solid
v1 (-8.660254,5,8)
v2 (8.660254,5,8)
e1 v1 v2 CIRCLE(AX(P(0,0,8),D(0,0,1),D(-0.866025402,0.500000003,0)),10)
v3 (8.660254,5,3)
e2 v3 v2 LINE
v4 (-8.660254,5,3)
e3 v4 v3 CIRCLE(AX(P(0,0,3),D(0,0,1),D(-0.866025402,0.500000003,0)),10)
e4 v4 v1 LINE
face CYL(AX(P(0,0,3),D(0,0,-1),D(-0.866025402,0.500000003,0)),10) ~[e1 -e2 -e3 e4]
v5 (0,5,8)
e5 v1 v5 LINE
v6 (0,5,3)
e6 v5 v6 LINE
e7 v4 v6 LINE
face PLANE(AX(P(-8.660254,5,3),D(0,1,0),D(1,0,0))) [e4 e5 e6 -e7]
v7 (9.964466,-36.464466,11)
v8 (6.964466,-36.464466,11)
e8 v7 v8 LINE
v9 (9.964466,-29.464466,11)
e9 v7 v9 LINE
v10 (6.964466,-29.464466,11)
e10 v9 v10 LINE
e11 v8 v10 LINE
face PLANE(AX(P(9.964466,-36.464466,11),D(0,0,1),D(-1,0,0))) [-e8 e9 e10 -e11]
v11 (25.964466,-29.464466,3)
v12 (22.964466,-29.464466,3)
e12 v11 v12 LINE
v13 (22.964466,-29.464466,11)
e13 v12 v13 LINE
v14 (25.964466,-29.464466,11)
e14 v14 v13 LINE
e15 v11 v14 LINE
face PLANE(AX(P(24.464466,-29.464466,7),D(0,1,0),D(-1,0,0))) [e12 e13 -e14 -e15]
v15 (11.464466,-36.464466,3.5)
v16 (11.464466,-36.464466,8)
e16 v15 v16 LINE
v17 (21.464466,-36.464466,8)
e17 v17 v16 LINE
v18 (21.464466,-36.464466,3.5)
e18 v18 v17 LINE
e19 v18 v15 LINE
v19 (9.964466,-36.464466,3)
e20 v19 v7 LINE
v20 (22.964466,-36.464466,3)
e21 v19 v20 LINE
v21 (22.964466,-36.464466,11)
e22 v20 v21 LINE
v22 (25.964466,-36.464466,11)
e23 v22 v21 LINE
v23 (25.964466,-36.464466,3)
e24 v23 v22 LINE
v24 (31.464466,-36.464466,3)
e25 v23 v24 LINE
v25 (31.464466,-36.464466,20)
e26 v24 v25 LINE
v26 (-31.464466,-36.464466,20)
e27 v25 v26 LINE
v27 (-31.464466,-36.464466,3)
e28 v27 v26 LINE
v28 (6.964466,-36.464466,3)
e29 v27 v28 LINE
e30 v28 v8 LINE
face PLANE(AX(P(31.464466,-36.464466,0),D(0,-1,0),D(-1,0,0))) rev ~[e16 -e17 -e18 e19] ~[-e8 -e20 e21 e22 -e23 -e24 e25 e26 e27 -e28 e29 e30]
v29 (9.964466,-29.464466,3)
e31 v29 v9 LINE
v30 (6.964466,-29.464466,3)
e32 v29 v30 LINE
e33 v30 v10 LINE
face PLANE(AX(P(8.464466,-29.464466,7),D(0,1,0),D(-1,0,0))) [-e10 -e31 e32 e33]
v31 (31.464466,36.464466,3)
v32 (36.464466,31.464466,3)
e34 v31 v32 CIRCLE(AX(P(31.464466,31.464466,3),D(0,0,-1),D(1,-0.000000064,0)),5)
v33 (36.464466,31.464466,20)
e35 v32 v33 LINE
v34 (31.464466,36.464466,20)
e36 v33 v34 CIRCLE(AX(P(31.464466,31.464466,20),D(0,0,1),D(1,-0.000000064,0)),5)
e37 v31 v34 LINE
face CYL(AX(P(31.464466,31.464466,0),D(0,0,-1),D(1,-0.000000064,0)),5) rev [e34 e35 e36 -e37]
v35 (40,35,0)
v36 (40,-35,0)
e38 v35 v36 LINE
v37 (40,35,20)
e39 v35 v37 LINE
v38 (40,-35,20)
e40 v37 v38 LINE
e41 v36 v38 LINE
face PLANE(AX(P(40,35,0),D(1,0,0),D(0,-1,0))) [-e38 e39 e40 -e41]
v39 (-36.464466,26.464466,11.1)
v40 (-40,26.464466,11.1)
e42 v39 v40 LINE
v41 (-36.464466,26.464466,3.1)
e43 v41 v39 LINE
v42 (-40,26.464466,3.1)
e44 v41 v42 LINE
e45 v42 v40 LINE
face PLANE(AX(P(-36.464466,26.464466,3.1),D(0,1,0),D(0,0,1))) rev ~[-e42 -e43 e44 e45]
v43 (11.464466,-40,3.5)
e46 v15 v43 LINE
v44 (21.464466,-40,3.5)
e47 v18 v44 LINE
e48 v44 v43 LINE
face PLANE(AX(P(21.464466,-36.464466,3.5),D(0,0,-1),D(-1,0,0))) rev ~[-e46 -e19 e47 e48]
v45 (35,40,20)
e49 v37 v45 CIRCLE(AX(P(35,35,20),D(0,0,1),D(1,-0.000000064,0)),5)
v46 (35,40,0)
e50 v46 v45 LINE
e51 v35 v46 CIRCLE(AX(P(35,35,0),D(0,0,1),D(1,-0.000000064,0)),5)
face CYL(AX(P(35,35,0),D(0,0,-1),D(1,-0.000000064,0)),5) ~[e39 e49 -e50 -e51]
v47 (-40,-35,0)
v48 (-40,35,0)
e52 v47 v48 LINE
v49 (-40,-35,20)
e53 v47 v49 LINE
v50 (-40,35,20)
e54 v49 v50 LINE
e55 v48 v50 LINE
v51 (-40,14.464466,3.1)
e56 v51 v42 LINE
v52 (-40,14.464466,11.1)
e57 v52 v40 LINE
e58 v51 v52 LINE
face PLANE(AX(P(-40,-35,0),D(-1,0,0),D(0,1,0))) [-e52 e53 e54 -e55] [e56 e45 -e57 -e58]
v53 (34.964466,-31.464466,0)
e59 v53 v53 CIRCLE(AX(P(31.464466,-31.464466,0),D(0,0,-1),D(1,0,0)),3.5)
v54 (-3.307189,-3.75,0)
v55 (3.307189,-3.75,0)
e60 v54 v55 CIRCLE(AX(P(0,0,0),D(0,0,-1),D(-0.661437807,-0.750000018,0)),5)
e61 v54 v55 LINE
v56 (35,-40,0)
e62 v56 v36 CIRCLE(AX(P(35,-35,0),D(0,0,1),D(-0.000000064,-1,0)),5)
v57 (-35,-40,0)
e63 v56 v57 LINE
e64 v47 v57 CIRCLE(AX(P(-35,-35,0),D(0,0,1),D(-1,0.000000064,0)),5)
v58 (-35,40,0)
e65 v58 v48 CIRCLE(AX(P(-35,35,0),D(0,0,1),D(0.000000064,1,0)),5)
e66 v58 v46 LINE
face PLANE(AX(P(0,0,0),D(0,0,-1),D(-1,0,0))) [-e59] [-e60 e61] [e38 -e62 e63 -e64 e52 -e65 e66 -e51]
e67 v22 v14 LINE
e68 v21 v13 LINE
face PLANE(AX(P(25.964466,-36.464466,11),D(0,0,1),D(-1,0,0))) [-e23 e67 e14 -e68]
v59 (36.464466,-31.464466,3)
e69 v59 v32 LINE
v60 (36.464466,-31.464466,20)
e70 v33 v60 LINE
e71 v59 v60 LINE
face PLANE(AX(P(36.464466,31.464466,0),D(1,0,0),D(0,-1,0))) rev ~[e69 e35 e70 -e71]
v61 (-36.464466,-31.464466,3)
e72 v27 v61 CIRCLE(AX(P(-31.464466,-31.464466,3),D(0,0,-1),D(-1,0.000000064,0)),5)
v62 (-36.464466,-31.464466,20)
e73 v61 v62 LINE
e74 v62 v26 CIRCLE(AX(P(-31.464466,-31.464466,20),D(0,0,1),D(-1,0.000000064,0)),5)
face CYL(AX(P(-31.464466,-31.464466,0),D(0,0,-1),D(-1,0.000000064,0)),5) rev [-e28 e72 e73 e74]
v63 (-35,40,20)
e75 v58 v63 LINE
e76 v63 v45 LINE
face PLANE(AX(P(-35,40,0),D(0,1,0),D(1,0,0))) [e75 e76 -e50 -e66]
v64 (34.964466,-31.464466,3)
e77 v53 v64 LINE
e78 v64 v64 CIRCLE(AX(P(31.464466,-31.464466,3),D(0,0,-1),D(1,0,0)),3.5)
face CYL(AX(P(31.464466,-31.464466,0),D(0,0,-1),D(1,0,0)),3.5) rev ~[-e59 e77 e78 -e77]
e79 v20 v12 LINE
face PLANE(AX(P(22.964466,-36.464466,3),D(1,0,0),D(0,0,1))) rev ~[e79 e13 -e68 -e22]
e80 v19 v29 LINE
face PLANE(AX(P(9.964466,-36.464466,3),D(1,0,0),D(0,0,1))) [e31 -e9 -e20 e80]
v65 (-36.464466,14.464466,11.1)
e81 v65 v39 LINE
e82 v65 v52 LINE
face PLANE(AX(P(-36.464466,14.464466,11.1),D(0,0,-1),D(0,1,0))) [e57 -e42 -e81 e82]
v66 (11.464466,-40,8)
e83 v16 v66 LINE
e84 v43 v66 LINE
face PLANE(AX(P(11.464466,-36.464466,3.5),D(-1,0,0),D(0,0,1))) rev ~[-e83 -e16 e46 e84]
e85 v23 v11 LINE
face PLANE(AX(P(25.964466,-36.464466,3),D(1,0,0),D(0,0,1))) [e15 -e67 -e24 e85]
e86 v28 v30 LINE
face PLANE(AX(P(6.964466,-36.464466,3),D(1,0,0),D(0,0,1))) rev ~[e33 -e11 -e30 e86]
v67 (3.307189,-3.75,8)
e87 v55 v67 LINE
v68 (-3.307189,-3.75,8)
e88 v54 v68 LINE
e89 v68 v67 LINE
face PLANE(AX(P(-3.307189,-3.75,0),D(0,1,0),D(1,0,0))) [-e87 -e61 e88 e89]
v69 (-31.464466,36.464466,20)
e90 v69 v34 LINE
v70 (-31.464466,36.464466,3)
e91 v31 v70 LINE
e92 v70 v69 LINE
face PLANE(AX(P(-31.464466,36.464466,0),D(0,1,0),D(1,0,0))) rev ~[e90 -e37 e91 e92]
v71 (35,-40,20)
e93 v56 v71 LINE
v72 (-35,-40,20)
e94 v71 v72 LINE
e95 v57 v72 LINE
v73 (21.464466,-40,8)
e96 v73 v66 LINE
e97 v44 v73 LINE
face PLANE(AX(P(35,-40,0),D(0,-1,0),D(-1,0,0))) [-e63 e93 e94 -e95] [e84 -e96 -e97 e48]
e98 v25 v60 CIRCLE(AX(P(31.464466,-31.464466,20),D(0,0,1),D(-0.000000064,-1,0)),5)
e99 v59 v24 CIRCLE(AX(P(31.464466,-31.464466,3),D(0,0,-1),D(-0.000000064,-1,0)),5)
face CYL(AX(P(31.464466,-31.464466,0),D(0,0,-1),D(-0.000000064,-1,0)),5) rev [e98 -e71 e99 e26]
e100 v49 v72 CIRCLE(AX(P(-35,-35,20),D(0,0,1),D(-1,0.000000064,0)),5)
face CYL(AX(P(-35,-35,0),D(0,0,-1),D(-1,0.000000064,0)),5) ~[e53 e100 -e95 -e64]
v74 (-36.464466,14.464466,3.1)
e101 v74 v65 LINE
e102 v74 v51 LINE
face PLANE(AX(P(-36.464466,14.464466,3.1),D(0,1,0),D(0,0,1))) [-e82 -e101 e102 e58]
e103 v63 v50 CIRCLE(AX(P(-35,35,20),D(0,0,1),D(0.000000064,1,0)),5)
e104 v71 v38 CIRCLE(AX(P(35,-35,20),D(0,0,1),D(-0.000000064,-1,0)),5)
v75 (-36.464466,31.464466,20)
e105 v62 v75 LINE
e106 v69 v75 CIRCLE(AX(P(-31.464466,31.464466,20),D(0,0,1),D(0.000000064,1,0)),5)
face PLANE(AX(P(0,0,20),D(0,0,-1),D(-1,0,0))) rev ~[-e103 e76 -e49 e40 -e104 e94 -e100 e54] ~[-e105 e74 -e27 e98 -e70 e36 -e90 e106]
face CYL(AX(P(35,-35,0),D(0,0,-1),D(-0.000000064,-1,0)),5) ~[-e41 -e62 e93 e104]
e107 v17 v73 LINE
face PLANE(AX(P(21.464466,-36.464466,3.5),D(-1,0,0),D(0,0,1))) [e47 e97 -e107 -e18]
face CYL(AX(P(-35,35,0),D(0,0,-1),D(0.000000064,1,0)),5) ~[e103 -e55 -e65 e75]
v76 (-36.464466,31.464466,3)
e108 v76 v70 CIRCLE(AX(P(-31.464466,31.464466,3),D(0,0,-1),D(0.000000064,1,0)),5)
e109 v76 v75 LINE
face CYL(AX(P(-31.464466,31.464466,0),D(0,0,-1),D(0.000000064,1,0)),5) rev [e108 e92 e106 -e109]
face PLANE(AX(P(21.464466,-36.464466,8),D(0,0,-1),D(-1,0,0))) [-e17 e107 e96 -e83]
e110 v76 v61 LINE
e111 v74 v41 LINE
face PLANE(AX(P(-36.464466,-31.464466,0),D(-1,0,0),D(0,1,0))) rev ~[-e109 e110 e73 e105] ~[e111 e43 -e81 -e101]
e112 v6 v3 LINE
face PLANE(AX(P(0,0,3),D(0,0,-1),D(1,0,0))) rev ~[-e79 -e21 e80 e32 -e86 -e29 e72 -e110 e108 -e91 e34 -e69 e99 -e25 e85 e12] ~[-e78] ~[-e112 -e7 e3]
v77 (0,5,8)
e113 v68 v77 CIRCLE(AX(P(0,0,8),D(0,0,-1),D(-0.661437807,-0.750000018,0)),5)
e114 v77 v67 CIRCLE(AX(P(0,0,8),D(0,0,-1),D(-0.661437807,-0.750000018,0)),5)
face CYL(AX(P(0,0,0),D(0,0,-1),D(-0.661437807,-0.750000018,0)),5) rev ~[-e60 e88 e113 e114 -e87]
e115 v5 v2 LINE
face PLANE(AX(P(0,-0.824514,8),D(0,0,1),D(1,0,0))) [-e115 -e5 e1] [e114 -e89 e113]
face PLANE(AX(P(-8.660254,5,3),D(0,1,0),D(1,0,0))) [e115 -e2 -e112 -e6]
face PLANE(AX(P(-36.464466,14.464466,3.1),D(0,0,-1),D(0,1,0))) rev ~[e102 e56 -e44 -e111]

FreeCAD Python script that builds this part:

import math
import FreeCAD as App
import Part
import Sketcher


def add_polygon(sketch, points):
    """Adds a closed chain of lines whose ends are joined by coincident constraints."""
    first, n = sketch.GeometryCount, len(points)
    for a, b in zip(points, points[1:] + points[:1]):
        sketch.addGeometry(Part.LineSegment(App.Vector(*a, 0), App.Vector(*b, 0)), False)
    for i in range(n):
        sketch.addConstraint(Sketcher.Constraint("Coincident", first + i, 2, first + (i + 1) % n, 1))

doc = App.newDocument("Part")
params = doc.addObject("Spreadsheet::Sheet", "Params")
for row, (alias, value) in enumerate([
    ("sketch1_radius", "5 mm"),
    ("sketch1_width", "70 mm"),
    ("pad1_length", "20 mm"),
    ("sketch2_width", "75 mm"),
    ("pad2_length", "3 mm"),
    ("sketch3_width", "10 mm"),
    ("sketch3_height", "4.5 mm"),
    ("pocket1_length", "3.535534 mm"),
    ("sketch4_width", "3 mm"),
    ("sketch4_height", "8 mm"),
    ("pad3_length", "7 mm"),
    ("sketch5_radius", "10 mm"),
    ("pad4_length", "5 mm"),
    ("sketch6_width", "12 mm"),
    ("sketch6_height", "8 mm"),
    ("pocket2_length", "3.535534 mm"),
    ("sketch7_diameter", "7 mm"),
    ("sketch7_radius", "5 mm"),
    ("pocket3_length", "8 mm"),
], start=1):
    params.set(f"A{row}", alias)
    params.set(f"B{row}", "=" + value)
    params.setAlias(f"B{row}", alias)

body = doc.addObject("PartDesign::Body", "Body")

# Sketch on XY plane
sketch1 = body.newObject("Sketcher::SketchObject", "Sketch")
sketch1.AttachmentSupport = (doc.getObject("XY_Plane"), [""])
sketch1.MapMode = "FlatFace"
sketch1.addGeometry(Part.LineSegment(App.Vector(35, 40, 0), App.Vector(-35, 40, 0)), False)
sketch1.addGeometry(Part.ArcOfCircle(Part.Circle(App.Vector(-35, 35, 0), App.Vector(0, 0, 1), 5), math.radians(90), math.radians(180)), False)
sketch1.addGeometry(Part.LineSegment(App.Vector(-40, 35, 0), App.Vector(-40, -35, 0)), False)
sketch1.addGeometry(Part.ArcOfCircle(Part.Circle(App.Vector(-35, -35, 0), App.Vector(0, 0, 1), 5), math.radians(180), math.radians(270)), False)
sketch1.addGeometry(Part.LineSegment(App.Vector(-35, -40, 0), App.Vector(35, -40, 0)), False)
sketch1.addGeometry(Part.ArcOfCircle(Part.Circle(App.Vector(35, -35, 0), App.Vector(0, 0, 1), 5), math.radians(-90), math.radians(0)), False)
sketch1.addGeometry(Part.LineSegment(App.Vector(40, -35, 0), App.Vector(40, 35, 0)), False)
sketch1.addGeometry(Part.ArcOfCircle(Part.Circle(App.Vector(35, 35, 0), App.Vector(0, 0, 1), 5), math.radians(0), math.radians(90)), False)
sketch1.addGeometry(Part.LineSegment(App.Vector(-31.5, 36.5, 0), App.Vector(31.5, 36.5, 0)), False)
sketch1.addGeometry(Part.ArcOfCircle(Part.Circle(App.Vector(31.5, 31.5, 0), App.Vector(0, 0, 1), 5), math.radians(0), math.radians(90)), False)
sketch1.addGeometry(Part.LineSegment(App.Vector(36.5, 31.5, 0), App.Vector(36.5, -31.5, 0)), False)
sketch1.addGeometry(Part.ArcOfCircle(Part.Circle(App.Vector(31.5, -31.5, 0), App.Vector(0, 0, 1), 5), math.radians(-90), math.radians(0)), False)
sketch1.addGeometry(Part.LineSegment(App.Vector(31.5, -36.5, 0), App.Vector(-31.5, -36.5, 0)), False)
sketch1.addGeometry(Part.ArcOfCircle(Part.Circle(App.Vector(-31.5, -31.5, 0), App.Vector(0, 0, 1), 5), math.radians(180), math.radians(270)), False)
sketch1.addGeometry(Part.LineSegment(App.Vector(-36.5, -31.5, 0), App.Vector(-36.5, 31.5, 0)), False)
sketch1.addGeometry(Part.ArcOfCircle(Part.Circle(App.Vector(-31.5, 31.5, 0), App.Vector(0, 0, 1), 5), math.radians(90), math.radians(180)), False)
sketch1.addConstraint(Sketcher.Constraint("Tangent", 0, 2, 1, 1))
sketch1.addConstraint(Sketcher.Constraint("Tangent", 1, 2, 2, 1))
sketch1.addConstraint(Sketcher.Constraint("Tangent", 2, 2, 3, 1))
sketch1.addConstraint(Sketcher.Constraint("Tangent", 3, 2, 4, 1))
sketch1.addConstraint(Sketcher.Constraint("Tangent", 4, 2, 5, 1))
sketch1.addConstraint(Sketcher.Constraint("Tangent", 5, 2, 6, 1))
sketch1.addConstraint(Sketcher.Constraint("Tangent", 6, 2, 7, 1))
sketch1.addConstraint(Sketcher.Constraint("Tangent", 7, 2, 0, 1))
sketch1.addConstraint(Sketcher.Constraint("Tangent", 8, 2, 9, 2))
sketch1.addConstraint(Sketcher.Constraint("Tangent", 9, 1, 10, 1))
sketch1.addConstraint(Sketcher.Constraint("Tangent", 10, 2, 11, 2))
sketch1.addConstraint(Sketcher.Constraint("Tangent", 11, 1, 12, 1))
sketch1.addConstraint(Sketcher.Constraint("Tangent", 12, 2, 13, 2))
sketch1.addConstraint(Sketcher.Constraint("Tangent", 13, 1, 14, 1))
sketch1.addConstraint(Sketcher.Constraint("Tangent", 14, 2, 15, 2))
sketch1.addConstraint(Sketcher.Constraint("Tangent", 15, 1, 8, 1))
sketch1.addConstraint(Sketcher.Constraint("Horizontal", 0))
sketch1.addConstraint(Sketcher.Constraint("Vertical", 2))
sketch1.addConstraint(Sketcher.Constraint("Horizontal", 4))
sketch1.addConstraint(Sketcher.Constraint("Vertical", 6))
sketch1.addConstraint(Sketcher.Constraint("Horizontal", 8))
sketch1.addConstraint(Sketcher.Constraint("Vertical", 10))
sketch1.addConstraint(Sketcher.Constraint("Horizontal", 12))
sketch1.addConstraint(Sketcher.Constraint("Vertical", 14))
sketch1.addConstraint(Sketcher.Constraint("Equal", 1, 3))
sketch1.addConstraint(Sketcher.Constraint("Equal", 3, 5))
sketch1.addConstraint(Sketcher.Constraint("Equal", 5, 7))
sketch1.addConstraint(Sketcher.Constraint("Equal", 7, 9))
sketch1.addConstraint(Sketcher.Constraint("Equal", 9, 11))
sketch1.addConstraint(Sketcher.Constraint("Equal", 11, 13))
sketch1.addConstraint(Sketcher.Constraint("Equal", 13, 15))
sketch1.addConstraint(Sketcher.Constraint("Symmetric", 1, 3, 5, 3, -1, 1))
sketch1.addConstraint(Sketcher.Constraint("Symmetric", 9, 3, 13, 3, -1, 1))
sketch1.addConstraint(Sketcher.Constraint("Equal", 4, 2))
sketch1.addConstraint(Sketcher.Constraint("Equal", 12, 10))
sketch1.addConstraint(Sketcher.Constraint("Radius", 1, 5.0))
sketch1.addConstraint(Sketcher.Constraint("DistanceX", 0, 2, 0, 1, 70.0))
sketch1.addConstraint(Sketcher.Constraint("DistanceX", 8, 1, 8, 2, 62.928932))
sketch1.setExpression("Constraints[35]", "Params.sketch1_radius")
sketch1.setExpression("Constraints[36]", "Params.sketch1_width")
pad1 = body.newObject("PartDesign::Pad", "Pad")
pad1.Profile = sketch1
pad1.setExpression("Length", "Params.pad1_length")

# Sketch on XY plane
sketch2 = body.newObject("Sketcher::SketchObject", "Sketch001")
sketch2.AttachmentSupport = (doc.getObject("XY_Plane"), [""])
sketch2.MapMode = "FlatFace"
add_polygon(sketch2, [(-38, -38), (-38, 38), (38, 38), (38, -38)])  # lines 0-3
sketch2.addConstraint(Sketcher.Constraint("Vertical", 0))
sketch2.addConstraint(Sketcher.Constraint("Horizontal", 1))
sketch2.addConstraint(Sketcher.Constraint("Vertical", 2))
sketch2.addConstraint(Sketcher.Constraint("Horizontal", 3))
sketch2.addConstraint(Sketcher.Constraint("Symmetric", 0, 2, 2, 2, -1, 1))
sketch2.addConstraint(Sketcher.Constraint("Equal", 3, 0))
sketch2.addConstraint(Sketcher.Constraint("DistanceX", 1, 1, 1, 2, 75.0))
sketch2.setExpression("Constraints[10]", "Params.sketch2_width")
pad2 = body.newObject("PartDesign::Pad", "Pad001")
pad2.Profile = sketch2
pad2.setExpression("Length", "Params.pad2_length")

# Sketch on XZ plane
sketch3 = body.newObject("Sketcher::SketchObject", "Sketch002")
sketch3.AttachmentSupport = (doc.getObject("XZ_Plane"), [""])
sketch3.MapMode = "FlatFace"
sketch3.AttachmentOffset = App.Placement(App.Vector(0, 0, 36.464466), App.Rotation())
add_polygon(sketch3, [(21.5, 8), (21.5, 3.5), (11.5, 3.5), (11.5, 8)])  # lines 0-3
sketch3.addConstraint(Sketcher.Constraint("Vertical", 0))
sketch3.addConstraint(Sketcher.Constraint("Horizontal", 1))
sketch3.addConstraint(Sketcher.Constraint("Vertical", 2))
sketch3.addConstraint(Sketcher.Constraint("Horizontal", 3))
sketch3.addConstraint(Sketcher.Constraint("DistanceX", 1, 2, 1, 1, 10.0))
sketch3.addConstraint(Sketcher.Constraint("DistanceY", 0, 2, 0, 1, 4.5))
sketch3.addConstraint(Sketcher.Constraint("DistanceY", -1, 1, 2, 2, 8.0))
sketch3.addConstraint(Sketcher.Constraint("DistanceX", -1, 1, 0, 2, 21.464466))
sketch3.setExpression("Constraints[8]", "Params.sketch3_width")
sketch3.setExpression("Constraints[9]", "Params.sketch3_height")
pocket1 = body.newObject("PartDesign::Pocket", "Pocket")
pocket1.Profile = sketch3
pocket1.setExpression("Length", "Params.pocket1_length")
pocket1.Reversed = True

# Sketch on XZ plane
sketch4 = body.newObject("Sketcher::SketchObject", "Sketch003")
sketch4.AttachmentSupport = (doc.getObject("XZ_Plane"), [""])
sketch4.MapMode = "FlatFace"
sketch4.AttachmentOffset = App.Placement(App.Vector(0, 0, 36.464466), App.Rotation())
add_polygon(sketch4, [(26, 11), (26, 3), (23, 3), (23, 11)])  # lines 0-3
add_polygon(sketch4, [(10, 11), (10, 3), (7, 3), (7, 11)])  # lines 4-7
sketch4.addConstraint(Sketcher.Constraint("Vertical", 0))
sketch4.addConstraint(Sketcher.Constraint("Horizontal", 1))
sketch4.addConstraint(Sketcher.Constraint("Vertical", 2))
sketch4.addConstraint(Sketcher.Constraint("Horizontal", 3))
sketch4.addConstraint(Sketcher.Constraint("Vertical", 4))
sketch4.addConstraint(Sketcher.Constraint("Horizontal", 5))
sketch4.addConstraint(Sketcher.Constraint("Vertical", 6))
sketch4.addConstraint(Sketcher.Constraint("Horizontal", 7))
sketch4.addConstraint(Sketcher.Constraint("Horizontal", 1, 2, 4, 2))
sketch4.addConstraint(Sketcher.Constraint("Horizontal", 3, 2, 6, 2))
sketch4.addConstraint(Sketcher.Constraint("Equal", 3, 5))
sketch4.addConstraint(Sketcher.Constraint("DistanceX", 1, 2, 1, 1, 3.0))
sketch4.addConstraint(Sketcher.Constraint("DistanceY", 0, 2, 0, 1, 8.0))
sketch4.addConstraint(Sketcher.Constraint("DistanceY", -1, 1, 0, 2, 3.0))
sketch4.addConstraint(Sketcher.Constraint("DistanceX", 4, 2, 1, 2, 13.0))
sketch4.addConstraint(Sketcher.Constraint("DistanceX", -1, 1, 0, 2, 25.964466))
sketch4.setExpression("Constraints[19]", "Params.sketch4_width")
sketch4.setExpression("Constraints[20]", "Params.sketch4_height")
pad3 = body.newObject("PartDesign::Pad", "Pad002")
pad3.Profile = sketch4
pad3.setExpression("Length", "Params.pad3_length")
pad3.Reversed = True

# Sketch on XY plane
sketch5 = body.newObject("Sketcher::SketchObject", "Sketch004")
sketch5.AttachmentSupport = (doc.getObject("XY_Plane"), [""])
sketch5.MapMode = "FlatFace"
sketch5.AttachmentOffset = App.Placement(App.Vector(0, 0, 3), App.Rotation())
sketch5.addGeometry(Part.ArcOfCircle(Part.Circle(App.Vector(0, 0, 0), App.Vector(0, 0, 1), 10), math.radians(150), math.radians(390)), False)
sketch5.addGeometry(Part.LineSegment(App.Vector(9, 5, 0), App.Vector(-9, 5, 0)), False)
sketch5.addConstraint(Sketcher.Constraint("Coincident", 0, 1, 1, 2))
sketch5.addConstraint(Sketcher.Constraint("Coincident", 1, 1, 0, 2))
sketch5.addConstraint(Sketcher.Constraint("Horizontal", 1))
sketch5.addConstraint(Sketcher.Constraint("Coincident", 0, 3, -1, 1))
sketch5.addConstraint(Sketcher.Constraint("Radius", 0, 10.0))
sketch5.addConstraint(Sketcher.Constraint("DistanceY", -1, 1, 0, 1, 5.0))
sketch5.setExpression("Constraints[4]", "Params.sketch5_radius")
pad4 = body.newObject("PartDesign::Pad", "Pad003")
pad4.Profile = sketch5
pad4.setExpression("Length", "Params.pad4_length")

# Sketch on YZ plane
sketch6 = body.newObject("Sketcher::SketchObject", "Sketch005")
sketch6.AttachmentSupport = (doc.getObject("YZ_Plane"), [""])
sketch6.MapMode = "FlatFace"
sketch6.AttachmentOffset = App.Placement(App.Vector(0, 0, -36.464466), App.Rotation())
add_polygon(sketch6, [(14, 11), (14, 3), (26, 3), (26, 11)])  # lines 0-3
sketch6.addConstraint(Sketcher.Constraint("Vertical", 0))
sketch6.addConstraint(Sketcher.Constraint("Horizontal", 1))
sketch6.addConstraint(Sketcher.Constraint("Vertical", 2))
sketch6.addConstraint(Sketcher.Constraint("Horizontal", 3))
sketch6.addConstraint(Sketcher.Constraint("DistanceX", 1, 1, 1, 2, 12.0))
sketch6.addConstraint(Sketcher.Constraint("DistanceY", 0, 2, 0, 1, 8.0))
sketch6.addConstraint(Sketcher.Constraint("DistanceY", -1, 1, 0, 2, 3.1))
sketch6.addConstraint(Sketcher.Constraint("DistanceX", -1, 1, 0, 2, 14.464466))
sketch6.setExpression("Constraints[8]", "Params.sketch6_width")
sketch6.setExpression("Constraints[9]", "Params.sketch6_height")
pocket2 = body.newObject("PartDesign::Pocket", "Pocket001")
pocket2.Profile = sketch6
pocket2.setExpression("Length", "Params.pocket2_length")

# Sketch on XY plane
sketch7 = body.newObject("Sketcher::SketchObject", "Sketch006")
sketch7.AttachmentSupport = (doc.getObject("XY_Plane"), [""])
sketch7.MapMode = "FlatFace"
sketch7.addGeometry(Part.Circle(App.Vector(31.5, -31.5, 0), App.Vector(0, 0, 1), 3.5), False)
sketch7.addGeometry(Part.ArcOfCircle(Part.Circle(App.Vector(0, 0, 0), App.Vector(0, 0, 1), 5), math.radians(-49), math.radians(229)), False)
sketch7.addGeometry(Part.LineSegment(App.Vector(3.3, -3.8, 0), App.Vector(-3.3, -3.8, 0)), False)
sketch7.addConstraint(Sketcher.Constraint("Coincident", 1, 1, 2, 1))
sketch7.addConstraint(Sketcher.Constraint("Coincident", 2, 2, 1, 2))
sketch7.addConstraint(Sketcher.Constraint("Horizontal", 2))
sketch7.addConstraint(Sketcher.Constraint("Coincident", 1, 3, -1, 1))
sketch7.addConstraint(Sketcher.Constraint("Diameter", 0, 7.0))
sketch7.addConstraint(Sketcher.Constraint("Radius", 1, 5.0))
sketch7.addConstraint(Sketcher.Constraint("DistanceY", 1, 1, -1, 1, 3.75))
sketch7.addConstraint(Sketcher.Constraint("DistanceX", -1, 1, 0, 3, 31.464466))
sketch7.addConstraint(Sketcher.Constraint("DistanceY", 0, 3, -1, 1, 31.464466))
sketch7.setExpression("Constraints[4]", "Params.sketch7_diameter")
sketch7.setExpression("Constraints[5]", "Params.sketch7_radius")
pocket3 = body.newObject("PartDesign::Pocket", "Pocket002")
pocket3.Profile = sketch7
pocket3.setExpression("Length", "Params.pocket3_length")
pocket3.Reversed = True

doc.recompute()
